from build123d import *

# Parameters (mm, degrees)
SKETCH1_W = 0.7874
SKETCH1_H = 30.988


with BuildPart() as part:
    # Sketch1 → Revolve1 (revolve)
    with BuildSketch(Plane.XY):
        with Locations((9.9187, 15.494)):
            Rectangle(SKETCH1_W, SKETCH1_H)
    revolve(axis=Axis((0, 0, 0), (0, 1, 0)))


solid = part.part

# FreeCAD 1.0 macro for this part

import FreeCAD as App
import Part
import Sketcher

V = App.Vector
Q = App.Units.Quantity


def add_polygon(sketch, points):
    """Adds a closed chain of lines whose ends are joined by coincident constraints."""
    first, n = sketch.GeometryCount, len(points)
    for a, b in zip(points, points[1:] + points[:1]):
        sketch.addGeometry(Part.LineSegment(App.Vector(*a, 0), App.Vector(*b, 0)), False)
    for i in range(n):
        sketch.addConstraint(Sketcher.Constraint("Coincident", first + i, 2, first + (i + 1) % n, 1))

doc = App.newDocument("Part")
body = doc.addObject("PartDesign::Body", "Body")

# Sketch on XY plane
sketch1 = doc.addObject("Sketcher::SketchObject", "Sketch")
body.addObject(sketch1)
sketch1.AttachmentSupport = (doc.XY_Plane, [""])
sketch1.MapMode = "FlatFace"
add_polygon(sketch1, [(9.5, 31), (9.5, 0), (10.3, 0), (10.3, 31)])  # lines 0-3
sketch1.addConstraint(Sketcher.Constraint("Vertical", 0))
sketch1.addConstraint(Sketcher.Constraint("Horizontal", 1))
sketch1.addConstraint(Sketcher.Constraint("Vertical", 2))
sketch1.addConstraint(Sketcher.Constraint("Horizontal", 3))
sketch1.addConstraint(Sketcher.Constraint("PointOnObject", 0, 2, -1))
sketch1.addConstraint(Sketcher.Constraint("DistanceY", 0, 2, 0, 1, Q("1.22 in")))
sketch1.addConstraint(Sketcher.Constraint("DistanceX", 1, 1, 1, 2, Q("0.031 in")))
sketch1.addConstraint(Sketcher.Constraint("DistanceX", -1, 1, 0, 2, Q("0.375 in")))
revolution = doc.addObject("PartDesign::Revolution", "Revolution")
body.addObject(revolution)
revolution.Profile = sketch1
revolution.ReferenceAxis = (sketch1, ["V_Axis"])
revolution.Angle = 360

doc.recompute()
